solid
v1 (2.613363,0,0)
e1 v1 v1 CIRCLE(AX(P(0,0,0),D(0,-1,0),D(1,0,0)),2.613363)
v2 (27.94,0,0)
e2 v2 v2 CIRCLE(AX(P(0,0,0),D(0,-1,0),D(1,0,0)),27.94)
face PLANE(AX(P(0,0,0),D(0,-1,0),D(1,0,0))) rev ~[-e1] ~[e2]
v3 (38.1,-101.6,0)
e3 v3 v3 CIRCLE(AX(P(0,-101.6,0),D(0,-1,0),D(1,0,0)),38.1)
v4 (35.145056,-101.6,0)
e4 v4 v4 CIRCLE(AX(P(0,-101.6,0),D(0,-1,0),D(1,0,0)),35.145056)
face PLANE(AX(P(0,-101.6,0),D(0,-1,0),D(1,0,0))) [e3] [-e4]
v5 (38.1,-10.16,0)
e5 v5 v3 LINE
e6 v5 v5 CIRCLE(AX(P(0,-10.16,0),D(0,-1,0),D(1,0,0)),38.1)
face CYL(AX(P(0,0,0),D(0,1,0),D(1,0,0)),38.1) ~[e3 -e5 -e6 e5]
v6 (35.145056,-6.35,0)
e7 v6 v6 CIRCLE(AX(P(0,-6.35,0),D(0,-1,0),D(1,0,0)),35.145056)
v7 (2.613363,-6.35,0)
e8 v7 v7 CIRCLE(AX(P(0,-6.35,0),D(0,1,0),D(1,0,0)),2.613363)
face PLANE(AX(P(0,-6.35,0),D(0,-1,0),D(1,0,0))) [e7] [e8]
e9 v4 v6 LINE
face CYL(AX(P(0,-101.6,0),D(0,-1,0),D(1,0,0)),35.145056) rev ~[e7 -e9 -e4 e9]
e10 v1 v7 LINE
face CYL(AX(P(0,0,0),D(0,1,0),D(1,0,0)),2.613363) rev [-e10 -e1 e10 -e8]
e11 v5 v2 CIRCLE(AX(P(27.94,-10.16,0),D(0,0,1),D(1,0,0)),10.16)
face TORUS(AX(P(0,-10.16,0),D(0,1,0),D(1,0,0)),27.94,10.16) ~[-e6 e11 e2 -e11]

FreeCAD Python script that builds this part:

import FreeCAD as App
import Part
import Sketcher

V = App.Vector
Q = App.Units.Quantity


def edges_at(feature, points):
    """Names of the edges that pass closest to the given points."""
    edges = feature.Shape.Edges
    near = lambda p: min(range(len(edges)), key=lambda i: edges[i].distToShape(Part.Vertex(*p))[0])
    return sorted({f"Edge{near(p) + 1}" for p in points})

doc = App.newDocument("Part")
body = doc.addObject("PartDesign::Body", "Body")

sketch1 = doc.addObject("Sketcher::SketchObject", "Sketch")
body.addObject(sketch1)
sketch1.AttachmentSupport = (doc.XZ_Plane, [""])
sketch1.MapMode = "FlatFace"
sketch1.addGeometry(Part.Circle(V(0, 0, 0), V(0, 0, 1), 38), False)
sketch1.addConstraint([
    Sketcher.Constraint("Coincident", 0, 3, -1, 1),
    Sketcher.Constraint("Diameter", 0, Q("3 in")),
])
pad1 = doc.addObject("PartDesign::Pad", "Pad")
body.addObject(pad1)
pad1.Profile = sketch1
pad1.Length = Q("4 in")

sketch2 = doc.addObject("Sketcher::SketchObject", "Sketch001")
body.addObject(sketch2)
sketch2.AttachmentSupport = (doc.XZ_Plane, [""])
sketch2.MapMode = "FlatFace"
sketch2.AttachmentOffset = App.Placement(V(0, 0, 4 * 25.4), App.Rotation())
sketch2.addGeometry(Part.Circle(V(0, 0, 0), V(0, 0, 1), 35), False)
sketch2.addConstraint([
    Sketcher.Constraint("Coincident", 0, 3, -1, 1),
    Sketcher.Constraint("Diameter", 0, Q("70.290111 mm")),
])
pocket1 = doc.addObject("PartDesign::Pocket", "Pocket")
body.addObject(pocket1)
pocket1.Profile = sketch2
pocket1.Length = Q("3.75 in")
doc.recompute()

fillet = doc.addObject("PartDesign::Fillet", "Fillet")
body.addObject(fillet)
fillet.Base = (pocket1, edges_at(pocket1, [(-38.1, 0, 0)]))
fillet.Radius = Q("0.4 in")

sketch3 = doc.addObject("Sketcher::SketchObject", "Sketch002")
body.addObject(sketch3)
sketch3.AttachmentSupport = (doc.XZ_Plane, [""])
sketch3.MapMode = "FlatFace"
sketch3.addGeometry(Part.Circle(V(0, 0, 0), V(0, 0, 1), 2.6), False)
sketch3.addConstraint([
    Sketcher.Constraint("Coincident", 0, 3, -1, 1),
    Sketcher.Constraint("Diameter", 0, Q("5.226726 mm")),
])
pocket2 = doc.addObject("PartDesign::Pocket", "Pocket001")
body.addObject(pocket2)
pocket2.Profile = sketch3
pocket2.Type = "ThroughAll"
pocket2.Reversed = True

doc.recompute()
